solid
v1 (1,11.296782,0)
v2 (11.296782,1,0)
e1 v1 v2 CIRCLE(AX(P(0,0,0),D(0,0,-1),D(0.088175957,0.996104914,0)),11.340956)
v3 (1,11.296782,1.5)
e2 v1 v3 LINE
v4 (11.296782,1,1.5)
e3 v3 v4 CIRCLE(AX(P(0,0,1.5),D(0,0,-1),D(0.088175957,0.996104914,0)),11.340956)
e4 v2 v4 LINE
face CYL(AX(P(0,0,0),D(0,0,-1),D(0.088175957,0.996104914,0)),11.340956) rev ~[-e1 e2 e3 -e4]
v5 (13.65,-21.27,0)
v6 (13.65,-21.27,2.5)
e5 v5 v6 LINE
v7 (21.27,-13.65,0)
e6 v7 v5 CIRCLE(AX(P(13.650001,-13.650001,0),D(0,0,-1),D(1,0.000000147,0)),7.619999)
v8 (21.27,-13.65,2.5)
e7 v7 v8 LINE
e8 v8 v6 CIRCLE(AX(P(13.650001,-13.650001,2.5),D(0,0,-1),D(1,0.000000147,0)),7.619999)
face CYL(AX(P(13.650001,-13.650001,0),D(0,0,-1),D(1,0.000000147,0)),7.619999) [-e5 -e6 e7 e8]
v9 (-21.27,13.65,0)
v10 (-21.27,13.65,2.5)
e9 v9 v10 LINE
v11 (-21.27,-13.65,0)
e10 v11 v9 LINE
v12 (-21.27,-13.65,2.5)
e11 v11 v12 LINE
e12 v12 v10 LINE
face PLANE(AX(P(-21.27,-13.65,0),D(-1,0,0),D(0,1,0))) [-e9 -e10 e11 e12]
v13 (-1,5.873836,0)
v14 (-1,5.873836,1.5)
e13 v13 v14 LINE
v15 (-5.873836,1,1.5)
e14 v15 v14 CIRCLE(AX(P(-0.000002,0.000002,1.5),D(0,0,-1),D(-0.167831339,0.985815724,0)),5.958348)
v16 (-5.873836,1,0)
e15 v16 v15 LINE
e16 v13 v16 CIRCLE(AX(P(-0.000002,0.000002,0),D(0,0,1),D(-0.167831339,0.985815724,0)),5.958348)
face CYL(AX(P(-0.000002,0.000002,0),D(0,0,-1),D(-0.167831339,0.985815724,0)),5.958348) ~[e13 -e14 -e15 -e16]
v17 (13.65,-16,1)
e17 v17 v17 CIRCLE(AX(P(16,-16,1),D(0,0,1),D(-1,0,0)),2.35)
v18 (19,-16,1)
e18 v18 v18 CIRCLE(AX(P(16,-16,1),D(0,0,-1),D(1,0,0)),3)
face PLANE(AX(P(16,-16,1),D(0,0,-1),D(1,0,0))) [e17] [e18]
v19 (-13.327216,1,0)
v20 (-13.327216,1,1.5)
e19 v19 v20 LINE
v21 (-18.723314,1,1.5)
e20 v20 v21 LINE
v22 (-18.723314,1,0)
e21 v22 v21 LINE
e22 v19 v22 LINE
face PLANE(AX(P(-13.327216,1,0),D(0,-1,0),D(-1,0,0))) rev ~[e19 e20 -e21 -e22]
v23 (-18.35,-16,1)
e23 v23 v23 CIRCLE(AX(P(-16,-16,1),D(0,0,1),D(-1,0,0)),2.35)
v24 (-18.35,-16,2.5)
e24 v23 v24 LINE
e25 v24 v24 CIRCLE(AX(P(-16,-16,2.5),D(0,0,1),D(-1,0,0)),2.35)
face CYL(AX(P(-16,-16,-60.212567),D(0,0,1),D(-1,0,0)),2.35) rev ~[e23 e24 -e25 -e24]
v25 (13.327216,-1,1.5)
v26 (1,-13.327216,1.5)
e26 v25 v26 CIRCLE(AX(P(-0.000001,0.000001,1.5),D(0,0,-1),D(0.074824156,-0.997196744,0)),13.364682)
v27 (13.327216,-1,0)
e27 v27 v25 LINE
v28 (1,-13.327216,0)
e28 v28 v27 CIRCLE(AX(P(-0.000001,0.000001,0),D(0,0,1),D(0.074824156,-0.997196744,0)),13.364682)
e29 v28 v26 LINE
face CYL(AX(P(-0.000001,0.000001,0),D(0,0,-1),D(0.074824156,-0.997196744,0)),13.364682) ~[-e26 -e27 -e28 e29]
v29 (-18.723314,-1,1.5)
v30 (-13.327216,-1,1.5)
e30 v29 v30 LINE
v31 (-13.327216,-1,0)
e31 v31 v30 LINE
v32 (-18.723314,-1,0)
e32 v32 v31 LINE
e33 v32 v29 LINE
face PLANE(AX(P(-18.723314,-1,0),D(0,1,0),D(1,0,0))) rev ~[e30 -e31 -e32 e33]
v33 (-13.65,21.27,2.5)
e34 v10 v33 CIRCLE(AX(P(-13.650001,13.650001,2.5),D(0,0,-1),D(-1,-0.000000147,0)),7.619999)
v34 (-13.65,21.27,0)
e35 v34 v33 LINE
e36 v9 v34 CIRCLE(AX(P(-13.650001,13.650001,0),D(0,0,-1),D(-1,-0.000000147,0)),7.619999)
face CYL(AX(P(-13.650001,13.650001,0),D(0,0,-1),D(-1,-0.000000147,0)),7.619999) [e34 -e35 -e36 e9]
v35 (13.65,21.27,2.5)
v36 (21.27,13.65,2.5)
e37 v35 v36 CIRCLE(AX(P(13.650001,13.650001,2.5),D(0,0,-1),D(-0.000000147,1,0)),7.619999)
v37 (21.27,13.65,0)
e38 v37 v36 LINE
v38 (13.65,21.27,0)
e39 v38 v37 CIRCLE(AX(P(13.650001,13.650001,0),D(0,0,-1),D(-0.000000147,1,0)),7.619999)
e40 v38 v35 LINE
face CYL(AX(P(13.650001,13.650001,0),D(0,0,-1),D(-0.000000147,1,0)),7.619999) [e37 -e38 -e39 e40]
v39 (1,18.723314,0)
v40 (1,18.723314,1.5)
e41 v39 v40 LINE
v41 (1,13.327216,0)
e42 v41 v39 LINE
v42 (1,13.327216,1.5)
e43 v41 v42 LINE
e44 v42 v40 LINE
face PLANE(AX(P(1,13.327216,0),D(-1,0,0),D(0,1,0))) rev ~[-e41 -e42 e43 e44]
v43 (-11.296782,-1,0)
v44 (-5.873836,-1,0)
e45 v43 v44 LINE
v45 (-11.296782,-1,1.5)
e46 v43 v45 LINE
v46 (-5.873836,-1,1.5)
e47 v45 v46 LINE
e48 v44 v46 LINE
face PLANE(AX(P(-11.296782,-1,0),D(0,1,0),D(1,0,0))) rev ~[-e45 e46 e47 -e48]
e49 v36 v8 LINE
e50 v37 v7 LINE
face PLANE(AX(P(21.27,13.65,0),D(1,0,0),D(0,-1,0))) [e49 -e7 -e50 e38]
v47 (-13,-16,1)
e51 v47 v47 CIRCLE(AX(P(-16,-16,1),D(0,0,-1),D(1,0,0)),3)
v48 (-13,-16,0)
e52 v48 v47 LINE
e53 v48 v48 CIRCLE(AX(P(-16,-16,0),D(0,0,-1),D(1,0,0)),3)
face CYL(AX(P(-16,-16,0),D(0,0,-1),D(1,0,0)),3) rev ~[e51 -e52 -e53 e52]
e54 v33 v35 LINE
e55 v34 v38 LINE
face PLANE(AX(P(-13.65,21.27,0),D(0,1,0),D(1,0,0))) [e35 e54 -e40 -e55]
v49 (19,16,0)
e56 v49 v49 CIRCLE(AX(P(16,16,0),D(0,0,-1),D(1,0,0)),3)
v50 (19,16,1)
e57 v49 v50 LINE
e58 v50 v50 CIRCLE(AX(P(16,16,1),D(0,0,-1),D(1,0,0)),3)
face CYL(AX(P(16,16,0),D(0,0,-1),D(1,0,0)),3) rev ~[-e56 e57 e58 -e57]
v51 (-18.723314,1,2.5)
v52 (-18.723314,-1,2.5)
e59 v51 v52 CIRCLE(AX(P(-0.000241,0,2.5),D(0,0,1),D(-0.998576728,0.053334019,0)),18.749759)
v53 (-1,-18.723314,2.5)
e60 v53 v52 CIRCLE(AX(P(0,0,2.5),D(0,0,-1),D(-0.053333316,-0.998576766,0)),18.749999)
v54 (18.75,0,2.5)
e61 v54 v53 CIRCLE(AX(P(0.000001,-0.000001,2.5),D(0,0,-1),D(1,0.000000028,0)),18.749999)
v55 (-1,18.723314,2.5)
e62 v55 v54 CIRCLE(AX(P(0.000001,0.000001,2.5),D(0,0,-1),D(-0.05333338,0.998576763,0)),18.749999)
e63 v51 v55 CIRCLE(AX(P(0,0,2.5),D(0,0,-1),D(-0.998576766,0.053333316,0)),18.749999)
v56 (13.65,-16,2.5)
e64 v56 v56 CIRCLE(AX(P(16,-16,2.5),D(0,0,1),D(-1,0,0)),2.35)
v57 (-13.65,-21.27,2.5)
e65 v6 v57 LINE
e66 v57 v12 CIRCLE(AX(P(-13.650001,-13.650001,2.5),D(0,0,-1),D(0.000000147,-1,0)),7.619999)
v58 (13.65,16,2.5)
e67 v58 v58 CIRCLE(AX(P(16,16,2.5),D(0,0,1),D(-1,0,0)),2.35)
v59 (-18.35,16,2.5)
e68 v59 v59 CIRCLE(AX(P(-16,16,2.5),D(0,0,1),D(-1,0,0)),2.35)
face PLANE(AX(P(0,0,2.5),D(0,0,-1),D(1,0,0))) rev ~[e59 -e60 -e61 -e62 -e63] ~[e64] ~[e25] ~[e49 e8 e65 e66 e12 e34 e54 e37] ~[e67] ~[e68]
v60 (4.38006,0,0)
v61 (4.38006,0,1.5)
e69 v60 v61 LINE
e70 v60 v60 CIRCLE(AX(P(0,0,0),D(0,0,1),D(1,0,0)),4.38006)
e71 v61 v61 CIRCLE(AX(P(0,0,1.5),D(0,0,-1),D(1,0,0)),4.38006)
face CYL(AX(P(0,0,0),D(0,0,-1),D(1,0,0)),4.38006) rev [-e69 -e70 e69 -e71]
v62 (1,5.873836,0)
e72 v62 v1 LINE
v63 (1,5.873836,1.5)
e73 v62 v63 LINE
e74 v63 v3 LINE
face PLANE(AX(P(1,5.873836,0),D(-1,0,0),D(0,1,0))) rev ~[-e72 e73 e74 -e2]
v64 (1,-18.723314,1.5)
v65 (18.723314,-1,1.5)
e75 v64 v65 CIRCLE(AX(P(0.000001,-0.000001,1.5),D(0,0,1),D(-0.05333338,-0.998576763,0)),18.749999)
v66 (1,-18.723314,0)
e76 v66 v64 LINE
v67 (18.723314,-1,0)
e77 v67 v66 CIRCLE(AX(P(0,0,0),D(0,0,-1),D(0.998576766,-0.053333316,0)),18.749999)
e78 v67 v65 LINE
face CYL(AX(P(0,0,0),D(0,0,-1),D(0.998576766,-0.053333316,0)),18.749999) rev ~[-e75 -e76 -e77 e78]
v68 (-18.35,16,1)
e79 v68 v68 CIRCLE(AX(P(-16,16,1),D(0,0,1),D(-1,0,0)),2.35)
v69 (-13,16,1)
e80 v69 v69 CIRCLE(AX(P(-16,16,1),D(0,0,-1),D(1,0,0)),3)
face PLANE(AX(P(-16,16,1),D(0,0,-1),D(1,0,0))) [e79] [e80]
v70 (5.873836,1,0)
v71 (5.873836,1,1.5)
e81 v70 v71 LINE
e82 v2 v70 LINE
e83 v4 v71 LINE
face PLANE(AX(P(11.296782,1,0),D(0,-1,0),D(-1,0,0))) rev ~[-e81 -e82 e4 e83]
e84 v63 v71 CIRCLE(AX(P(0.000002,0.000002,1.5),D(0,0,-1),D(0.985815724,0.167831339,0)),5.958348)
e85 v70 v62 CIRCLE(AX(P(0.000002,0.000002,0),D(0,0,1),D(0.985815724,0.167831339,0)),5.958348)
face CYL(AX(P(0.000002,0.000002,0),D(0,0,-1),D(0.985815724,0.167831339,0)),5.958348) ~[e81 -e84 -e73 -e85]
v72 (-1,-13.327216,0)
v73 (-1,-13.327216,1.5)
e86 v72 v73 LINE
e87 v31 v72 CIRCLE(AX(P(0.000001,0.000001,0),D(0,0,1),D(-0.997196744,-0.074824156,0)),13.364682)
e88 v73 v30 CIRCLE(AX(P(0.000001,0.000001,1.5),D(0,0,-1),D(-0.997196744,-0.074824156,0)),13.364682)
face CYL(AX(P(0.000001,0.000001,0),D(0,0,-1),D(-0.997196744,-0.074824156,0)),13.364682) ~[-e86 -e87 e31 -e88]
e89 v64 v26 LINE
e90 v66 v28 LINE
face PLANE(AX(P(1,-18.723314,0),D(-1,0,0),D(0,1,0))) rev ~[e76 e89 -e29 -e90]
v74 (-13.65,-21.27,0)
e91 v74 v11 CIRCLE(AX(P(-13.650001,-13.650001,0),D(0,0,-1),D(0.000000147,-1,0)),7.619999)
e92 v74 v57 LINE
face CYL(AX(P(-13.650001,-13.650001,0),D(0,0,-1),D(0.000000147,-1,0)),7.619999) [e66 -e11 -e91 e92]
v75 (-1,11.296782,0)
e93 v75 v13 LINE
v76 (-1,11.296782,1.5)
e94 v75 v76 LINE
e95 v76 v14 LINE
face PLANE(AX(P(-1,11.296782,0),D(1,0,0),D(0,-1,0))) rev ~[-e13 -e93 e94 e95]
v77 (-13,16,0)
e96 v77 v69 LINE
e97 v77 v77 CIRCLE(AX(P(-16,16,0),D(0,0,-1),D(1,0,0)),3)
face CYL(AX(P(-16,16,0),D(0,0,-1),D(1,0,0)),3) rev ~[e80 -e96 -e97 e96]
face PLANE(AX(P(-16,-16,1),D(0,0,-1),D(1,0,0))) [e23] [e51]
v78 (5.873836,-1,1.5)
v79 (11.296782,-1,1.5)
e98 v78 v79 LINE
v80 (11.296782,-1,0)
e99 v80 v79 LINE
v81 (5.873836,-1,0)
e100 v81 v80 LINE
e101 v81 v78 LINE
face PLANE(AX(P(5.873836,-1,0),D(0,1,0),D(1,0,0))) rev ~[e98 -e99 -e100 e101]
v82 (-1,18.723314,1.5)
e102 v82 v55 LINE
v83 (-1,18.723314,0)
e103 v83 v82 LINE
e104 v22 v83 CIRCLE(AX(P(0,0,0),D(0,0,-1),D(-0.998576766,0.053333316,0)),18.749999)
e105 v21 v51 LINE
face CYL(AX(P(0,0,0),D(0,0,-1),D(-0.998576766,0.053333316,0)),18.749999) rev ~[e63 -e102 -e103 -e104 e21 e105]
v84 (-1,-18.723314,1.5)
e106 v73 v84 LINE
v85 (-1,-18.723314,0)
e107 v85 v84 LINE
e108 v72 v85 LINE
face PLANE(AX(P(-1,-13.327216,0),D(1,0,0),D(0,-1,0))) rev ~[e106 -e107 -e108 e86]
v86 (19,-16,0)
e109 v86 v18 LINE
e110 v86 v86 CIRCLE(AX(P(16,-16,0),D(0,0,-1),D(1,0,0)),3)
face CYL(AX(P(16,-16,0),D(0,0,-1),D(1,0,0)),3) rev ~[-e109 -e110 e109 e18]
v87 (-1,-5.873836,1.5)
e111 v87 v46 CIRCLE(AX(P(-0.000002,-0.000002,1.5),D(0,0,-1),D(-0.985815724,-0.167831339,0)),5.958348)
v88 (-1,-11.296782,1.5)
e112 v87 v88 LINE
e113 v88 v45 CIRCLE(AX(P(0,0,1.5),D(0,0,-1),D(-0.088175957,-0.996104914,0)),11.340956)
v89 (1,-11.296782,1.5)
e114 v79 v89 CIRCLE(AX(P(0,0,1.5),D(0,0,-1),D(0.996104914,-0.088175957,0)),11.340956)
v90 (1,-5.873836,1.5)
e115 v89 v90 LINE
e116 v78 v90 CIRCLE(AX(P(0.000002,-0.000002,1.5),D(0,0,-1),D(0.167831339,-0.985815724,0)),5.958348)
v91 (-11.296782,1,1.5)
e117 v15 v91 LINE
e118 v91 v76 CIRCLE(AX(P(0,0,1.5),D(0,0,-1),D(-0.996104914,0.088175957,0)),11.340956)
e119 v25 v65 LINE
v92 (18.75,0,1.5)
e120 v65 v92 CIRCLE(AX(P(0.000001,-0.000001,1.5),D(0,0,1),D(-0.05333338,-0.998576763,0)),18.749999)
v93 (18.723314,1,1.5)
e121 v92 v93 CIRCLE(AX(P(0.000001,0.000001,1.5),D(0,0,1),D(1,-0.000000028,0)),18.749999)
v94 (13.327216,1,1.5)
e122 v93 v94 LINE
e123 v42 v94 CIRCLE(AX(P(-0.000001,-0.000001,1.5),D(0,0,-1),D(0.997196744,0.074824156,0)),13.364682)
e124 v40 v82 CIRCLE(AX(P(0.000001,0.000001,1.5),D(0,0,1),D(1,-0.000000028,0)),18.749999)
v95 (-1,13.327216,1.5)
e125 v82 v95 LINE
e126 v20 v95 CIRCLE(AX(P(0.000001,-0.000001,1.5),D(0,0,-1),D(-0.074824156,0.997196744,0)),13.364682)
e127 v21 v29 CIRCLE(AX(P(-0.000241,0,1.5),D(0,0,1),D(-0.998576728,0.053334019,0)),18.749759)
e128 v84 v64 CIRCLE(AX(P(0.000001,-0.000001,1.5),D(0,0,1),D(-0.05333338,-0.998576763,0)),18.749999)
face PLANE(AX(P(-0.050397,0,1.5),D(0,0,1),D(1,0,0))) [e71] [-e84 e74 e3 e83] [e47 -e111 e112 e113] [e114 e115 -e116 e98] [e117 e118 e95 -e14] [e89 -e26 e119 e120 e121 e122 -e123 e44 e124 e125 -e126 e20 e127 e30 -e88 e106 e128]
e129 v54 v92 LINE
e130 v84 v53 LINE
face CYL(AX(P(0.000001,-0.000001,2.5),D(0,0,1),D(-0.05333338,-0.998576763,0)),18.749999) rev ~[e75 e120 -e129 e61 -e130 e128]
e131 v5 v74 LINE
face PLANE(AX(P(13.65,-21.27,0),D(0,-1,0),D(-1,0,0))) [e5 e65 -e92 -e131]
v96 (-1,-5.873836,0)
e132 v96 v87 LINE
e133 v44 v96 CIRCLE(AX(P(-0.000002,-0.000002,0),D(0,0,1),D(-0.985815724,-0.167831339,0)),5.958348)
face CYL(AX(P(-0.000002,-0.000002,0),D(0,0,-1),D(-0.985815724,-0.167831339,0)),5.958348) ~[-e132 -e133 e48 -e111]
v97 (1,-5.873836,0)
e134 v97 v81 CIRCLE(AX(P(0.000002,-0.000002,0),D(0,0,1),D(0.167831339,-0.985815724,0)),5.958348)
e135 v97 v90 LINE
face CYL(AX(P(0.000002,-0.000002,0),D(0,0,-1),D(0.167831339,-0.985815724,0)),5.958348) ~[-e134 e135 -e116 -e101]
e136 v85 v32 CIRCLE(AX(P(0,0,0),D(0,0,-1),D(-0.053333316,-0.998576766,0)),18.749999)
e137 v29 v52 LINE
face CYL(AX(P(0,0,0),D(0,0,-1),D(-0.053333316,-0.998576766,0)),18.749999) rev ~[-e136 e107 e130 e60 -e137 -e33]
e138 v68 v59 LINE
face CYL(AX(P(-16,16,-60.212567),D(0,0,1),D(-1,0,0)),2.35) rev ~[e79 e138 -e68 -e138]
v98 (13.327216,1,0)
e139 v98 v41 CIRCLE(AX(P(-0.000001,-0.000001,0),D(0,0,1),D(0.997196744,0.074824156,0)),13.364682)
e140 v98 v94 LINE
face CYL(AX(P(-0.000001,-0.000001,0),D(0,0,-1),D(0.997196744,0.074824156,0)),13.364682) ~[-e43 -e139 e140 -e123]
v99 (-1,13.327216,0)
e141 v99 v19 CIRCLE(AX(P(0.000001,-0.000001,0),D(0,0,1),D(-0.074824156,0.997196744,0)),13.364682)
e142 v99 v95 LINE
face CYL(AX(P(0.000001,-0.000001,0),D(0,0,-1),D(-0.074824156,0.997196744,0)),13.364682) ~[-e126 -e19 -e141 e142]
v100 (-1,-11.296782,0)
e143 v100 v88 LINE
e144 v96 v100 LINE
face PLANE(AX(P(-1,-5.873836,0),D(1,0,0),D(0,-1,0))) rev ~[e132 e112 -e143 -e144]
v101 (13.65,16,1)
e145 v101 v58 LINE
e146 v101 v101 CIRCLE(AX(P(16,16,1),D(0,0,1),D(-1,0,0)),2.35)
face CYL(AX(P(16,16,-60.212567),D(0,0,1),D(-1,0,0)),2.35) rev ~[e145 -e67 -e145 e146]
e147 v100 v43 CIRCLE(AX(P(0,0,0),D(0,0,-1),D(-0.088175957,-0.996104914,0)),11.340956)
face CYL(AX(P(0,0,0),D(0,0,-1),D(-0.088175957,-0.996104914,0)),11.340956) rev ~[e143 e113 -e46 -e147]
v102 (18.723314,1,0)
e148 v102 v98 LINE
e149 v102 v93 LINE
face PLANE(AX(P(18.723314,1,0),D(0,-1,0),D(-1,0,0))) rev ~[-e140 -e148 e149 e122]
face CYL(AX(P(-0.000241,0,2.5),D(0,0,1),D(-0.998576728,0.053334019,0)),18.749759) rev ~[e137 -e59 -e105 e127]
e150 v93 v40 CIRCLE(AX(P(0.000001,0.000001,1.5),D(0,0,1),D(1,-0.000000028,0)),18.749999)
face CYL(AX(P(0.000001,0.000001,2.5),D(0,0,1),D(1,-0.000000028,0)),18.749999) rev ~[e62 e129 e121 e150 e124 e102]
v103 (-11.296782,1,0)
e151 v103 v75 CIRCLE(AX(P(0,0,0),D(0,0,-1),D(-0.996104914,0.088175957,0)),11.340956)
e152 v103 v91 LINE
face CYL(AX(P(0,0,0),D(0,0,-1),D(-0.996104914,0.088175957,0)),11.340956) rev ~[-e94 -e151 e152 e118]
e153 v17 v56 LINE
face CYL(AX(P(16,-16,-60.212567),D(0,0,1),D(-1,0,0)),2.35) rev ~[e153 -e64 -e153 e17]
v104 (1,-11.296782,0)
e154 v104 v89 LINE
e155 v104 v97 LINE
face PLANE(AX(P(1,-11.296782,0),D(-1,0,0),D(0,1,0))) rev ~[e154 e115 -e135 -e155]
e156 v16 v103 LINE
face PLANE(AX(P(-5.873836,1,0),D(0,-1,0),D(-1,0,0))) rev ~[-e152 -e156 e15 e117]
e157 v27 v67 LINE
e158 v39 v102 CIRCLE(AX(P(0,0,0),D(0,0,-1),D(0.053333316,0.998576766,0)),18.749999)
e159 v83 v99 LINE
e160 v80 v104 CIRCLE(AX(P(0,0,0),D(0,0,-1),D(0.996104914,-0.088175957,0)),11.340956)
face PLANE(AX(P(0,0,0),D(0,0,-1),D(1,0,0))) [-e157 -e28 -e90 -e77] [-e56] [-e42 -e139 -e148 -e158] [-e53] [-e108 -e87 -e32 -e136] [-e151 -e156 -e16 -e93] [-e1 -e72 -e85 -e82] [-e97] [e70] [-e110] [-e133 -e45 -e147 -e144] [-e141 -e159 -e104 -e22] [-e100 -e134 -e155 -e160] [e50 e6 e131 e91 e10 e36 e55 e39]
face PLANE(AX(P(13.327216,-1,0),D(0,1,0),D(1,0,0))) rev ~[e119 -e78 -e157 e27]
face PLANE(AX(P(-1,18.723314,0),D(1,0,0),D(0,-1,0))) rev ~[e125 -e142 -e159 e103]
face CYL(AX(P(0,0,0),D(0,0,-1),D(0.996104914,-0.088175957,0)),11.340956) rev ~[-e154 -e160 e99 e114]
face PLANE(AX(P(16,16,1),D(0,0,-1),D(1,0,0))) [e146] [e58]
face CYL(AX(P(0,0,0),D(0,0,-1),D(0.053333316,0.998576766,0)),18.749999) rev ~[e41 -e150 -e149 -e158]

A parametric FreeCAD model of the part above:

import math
import FreeCAD as App
import Part
import Sketcher

doc = App.newDocument("Part")
params = doc.addObject("Spreadsheet::Sheet", "Params")
for row, (alias, value) in enumerate([
    ("sketch1_diameter", "3.2 mm"),
    ("sketch1_radius", "6.35 mm"),
    ("sketch1_radius2", "18.749999 mm"),
    ("sketch1_width", "27.3 mm"),
    ("pad1_length", "2.5 mm"),
    ("sketch2_radius", "18.749999 mm"),
    ("pocket1_length", "1 mm"),
    ("sketch3_diameter", "6 mm"),
    ("sketch3_diameter2", "3.2 mm"),
    ("pocket2_length", "1 mm"),
    ("sketch4_radius", "7.619999 mm"),
    ("sketch4_radius2", "6.35 mm"),
    ("sketch4_width", "27.3 mm"),
    ("pad2_length", "2.5 mm"),
    ("sketch5_diameter", "3.4 mm"),
    ("sketch6_diameter", "4.7 mm"),
    ("hole_diameter", "4.7 mm"),
], start=1):
    params.set(f"A{row}", alias)
    params.set(f"B{row}", "=" + value)
    params.setAlias(f"B{row}", alias)

body = doc.addObject("PartDesign::Body", "Body")

# Sketch on XY plane
sketch1 = body.newObject("Sketcher::SketchObject", "Sketch")
sketch1.AttachmentSupport = (doc.getObject("XY_Plane"), [""])
sketch1.MapMode = "FlatFace"
sketch1.addGeometry([
    Part.LineSegment(App.Vector(13.7, 20, 0), App.Vector(-13.7, 20, 0)),  # 0
    Part.ArcOfCircle(Part.Circle(App.Vector(-13.6, 13.6, 0), App.Vector(0, 0, 1), 6.4), math.radians(90), math.radians(180)),  # 1
    Part.LineSegment(App.Vector(-20, 13.7, 0), App.Vector(-20, -13.7, 0)),  # 2
    Part.ArcOfCircle(Part.Circle(App.Vector(-13.6, -13.6, 0), App.Vector(0, 0, 1), 6.4), math.radians(-180), math.radians(-90)),  # 3
    Part.LineSegment(App.Vector(-13.7, -20, 0), App.Vector(13.7, -20, 0)),  # 4
    Part.ArcOfCircle(Part.Circle(App.Vector(13.6, -13.6, 0), App.Vector(0, 0, 1), 6.4), math.radians(-90), math.radians(0)),  # 5
    Part.LineSegment(App.Vector(20, -13.7, 0), App.Vector(20, 13.7, 0)),  # 6
    Part.ArcOfCircle(Part.Circle(App.Vector(13.6, 13.6, 0), App.Vector(0, 0, 1), 6.4), math.radians(0), math.radians(90)),  # 7
    Part.Circle(App.Vector(-16, -16, 0), App.Vector(0, 0, 1), 1.6),  # 8
    Part.LineSegment(App.Vector(-1, -13.3, 0), App.Vector(-1, -18.7, 0)),  # 9
    Part.ArcOfCircle(Part.Circle(App.Vector(0, 0, 0), App.Vector(0, 0, 1), 18.7), math.radians(-177), math.radians(-93)),  # 10
    Part.LineSegment(App.Vector(-18.7, -1, 0), App.Vector(-13.3, -1, 0)),  # 11
    Part.ArcOfCircle(Part.Circle(App.Vector(0, 0, 0), App.Vector(0, 0, 1), 13.4), math.radians(-176), math.radians(-94)),  # 12
    Part.LineSegment(App.Vector(-11.3, -1, 0), App.Vector(-5.9, -1, 0)),  # 13
    Part.ArcOfCircle(Part.Circle(App.Vector(0, 0, 0), App.Vector(0, 0, 1), 6), math.radians(-170), math.radians(-100)),  # 14
    Part.LineSegment(App.Vector(-1, -5.9, 0), App.Vector(-1, -11.3, 0)),  # 15
    Part.ArcOfCircle(Part.Circle(App.Vector(0, 0, 0), App.Vector(0, 0, 1), 11.3), math.radians(-175), math.radians(-95)),  # 16
    Part.Circle(App.Vector(16, -16, 0), App.Vector(0, 0, 1), 1.6),  # 17
    Part.LineSegment(App.Vector(13.3, -1, 0), App.Vector(18.7, -1, 0)),  # 18
    Part.ArcOfCircle(Part.Circle(App.Vector(0, 0, 0), App.Vector(0, 0, 1), 18.7), math.radians(-87), math.radians(-3)),  # 19
    Part.LineSegment(App.Vector(1, -18.7, 0), App.Vector(1, -13.3, 0)),  # 20
    Part.ArcOfCircle(Part.Circle(App.Vector(0, 0, 0), App.Vector(0, 0, 1), 13.4), math.radians(-86), math.radians(-4)),  # 21
    Part.LineSegment(App.Vector(1, -11.3, 0), App.Vector(1, -5.9, 0)),  # 22
    Part.ArcOfCircle(Part.Circle(App.Vector(0, 0, 0), App.Vector(0, 0, 1), 6), math.radians(-80), math.radians(-10)),  # 23
    Part.LineSegment(App.Vector(5.9, -1, 0), App.Vector(11.3, -1, 0)),  # 24
    Part.ArcOfCircle(Part.Circle(App.Vector(0, 0, 0), App.Vector(0, 0, 1), 11.3), math.radians(-85), math.radians(-5)),  # 25
    Part.LineSegment(App.Vector(-5.9, 1, 0), App.Vector(-11.3, 1, 0)),  # 26
    Part.ArcOfCircle(Part.Circle(App.Vector(0, 0, 0), App.Vector(0, 0, 1), 11.3), math.radians(95), math.radians(175)),  # 27
    Part.LineSegment(App.Vector(-1, 11.3, 0), App.Vector(-1, 5.9, 0)),  # 28
    Part.ArcOfCircle(Part.Circle(App.Vector(0, 0, 0), App.Vector(0, 0, 1), 6), math.radians(100), math.radians(170)),  # 29
    Part.LineSegment(App.Vector(-13.3, 1, 0), App.Vector(-18.7, 1, 0)),  # 30
    Part.ArcOfCircle(Part.Circle(App.Vector(0, 0, 0), App.Vector(0, 0, 1), 18.7), math.radians(93), math.radians(177)),  # 31
    Part.LineSegment(App.Vector(-1, 18.7, 0), App.Vector(-1, 13.3, 0)),  # 32
    Part.ArcOfCircle(Part.Circle(App.Vector(0, 0, 0), App.Vector(0, 0, 1), 13.4), math.radians(94), math.radians(176)),  # 33
    Part.Circle(App.Vector(-16, 16, 0), App.Vector(0, 0, 1), 1.6),  # 34
    Part.Circle(App.Vector(0, 0, 0), App.Vector(0, 0, 1), 4.4),  # 35
    Part.ArcOfCircle(Part.Circle(App.Vector(0, 0, 0), App.Vector(0, 0, 1), 11.3), math.radians(5), math.radians(85)),  # 36
    Part.LineSegment(App.Vector(11.3, 1, 0), App.Vector(5.9, 1, 0)),  # 37
    Part.ArcOfCircle(Part.Circle(App.Vector(0, 0, 0), App.Vector(0, 0, 1), 6), math.radians(10), math.radians(80)),  # 38
    Part.LineSegment(App.Vector(1, 5.9, 0), App.Vector(1, 11.3, 0)),  # 39
    Part.ArcOfCircle(Part.Circle(App.Vector(0, 0, 0), App.Vector(0, 0, 1), 13.4), math.radians(4), math.radians(86)),  # 40
    Part.LineSegment(App.Vector(1, 13.3, 0), App.Vector(1, 18.7, 0)),  # 41
    Part.ArcOfCircle(Part.Circle(App.Vector(0, 0, 0), App.Vector(0, 0, 1), 18.7), math.radians(3), math.radians(87)),  # 42
    Part.LineSegment(App.Vector(18.7, 1, 0), App.Vector(13.3, 1, 0)),  # 43
    Part.Circle(App.Vector(16, 16, 0), App.Vector(0, 0, 1), 1.6),  # 44
], False)
sketch1.addConstraint([
    Sketcher.Constraint("Tangent", 0, 2, 1, 1),
    Sketcher.Constraint("Tangent", 1, 2, 2, 1),
    Sketcher.Constraint("Tangent", 2, 2, 3, 1),
    Sketcher.Constraint("Tangent", 3, 2, 4, 1),
    Sketcher.Constraint("Tangent", 4, 2, 5, 1),
    Sketcher.Constraint("Tangent", 5, 2, 6, 1),
    Sketcher.Constraint("Tangent", 6, 2, 7, 1),
    Sketcher.Constraint("Tangent", 7, 2, 0, 1),
    Sketcher.Constraint("Coincident", 9, 2, 10, 2),
    Sketcher.Constraint("Coincident", 10, 1, 11, 1),
    Sketcher.Constraint("Coincident", 11, 2, 12, 1),
    Sketcher.Constraint("Coincident", 12, 2, 9, 1),
    Sketcher.Constraint("Coincident", 13, 2, 14, 1),
    Sketcher.Constraint("Coincident", 14, 2, 15, 1),
    Sketcher.Constraint("Coincident", 15, 2, 16, 2),
    Sketcher.Constraint("Coincident", 16, 1, 13, 1),
    Sketcher.Constraint("Coincident", 18, 2, 19, 2),
    Sketcher.Constraint("Coincident", 19, 1, 20, 1),
    Sketcher.Constraint("Coincident", 20, 2, 21, 1),
    Sketcher.Constraint("Coincident", 21, 2, 18, 1),
    Sketcher.Constraint("Coincident", 22, 2, 23, 1),
    Sketcher.Constraint("Coincident", 23, 2, 24, 1),
    Sketcher.Constraint("Coincident", 24, 2, 25, 2),
    Sketcher.Constraint("Coincident", 25, 1, 22, 1),
    Sketcher.Constraint("Coincident", 26, 2, 27, 2),
    Sketcher.Constraint("Coincident", 27, 1, 28, 1),
    Sketcher.Constraint("Coincident", 28, 2, 29, 1),
    Sketcher.Constraint("Coincident", 29, 2, 26, 1),
    Sketcher.Constraint("Coincident", 30, 2, 31, 2),
    Sketcher.Constraint("Coincident", 31, 1, 32, 1),
    Sketcher.Constraint("Coincident", 32, 2, 33, 1),
    Sketcher.Constraint("Coincident", 33, 2, 30, 1),
    Sketcher.Constraint("Coincident", 36, 1, 37, 1),
    Sketcher.Constraint("Coincident", 37, 2, 38, 1),
    Sketcher.Constraint("Coincident", 38, 2, 39, 1),
    Sketcher.Constraint("Coincident", 39, 2, 36, 2),
    Sketcher.Constraint("Coincident", 40, 2, 41, 1),
    Sketcher.Constraint("Coincident", 41, 2, 42, 2),
    Sketcher.Constraint("Coincident", 42, 1, 43, 1),
    Sketcher.Constraint("Coincident", 43, 2, 40, 1),
    Sketcher.Constraint("Horizontal", 0),
    Sketcher.Constraint("Vertical", 2),
    Sketcher.Constraint("Horizontal", 4),
    Sketcher.Constraint("Vertical", 6),
    Sketcher.Constraint("Vertical", 9),
    Sketcher.Constraint("Horizontal", 11),
    Sketcher.Constraint("Horizontal", 13),
    Sketcher.Constraint("Vertical", 15),
    Sketcher.Constraint("Horizontal", 18),
    Sketcher.Constraint("Vertical", 20),
    Sketcher.Constraint("Vertical", 22),
    Sketcher.Constraint("Horizontal", 24),
    Sketcher.Constraint("Horizontal", 26),
    Sketcher.Constraint("Vertical", 28),
    Sketcher.Constraint("Horizontal", 30),
    Sketcher.Constraint("Vertical", 32),
    Sketcher.Constraint("Horizontal", 37),
    Sketcher.Constraint("Vertical", 39),
    Sketcher.Constraint("Vertical", 41),
    Sketcher.Constraint("Horizontal", 43),
    Sketcher.Constraint("Coincident", 10, 3, -1, 1),
    Sketcher.Constraint("Coincident", 12, 3, -1, 1),
    Sketcher.Constraint("Coincident", 14, 3, -1, 1),
    Sketcher.Constraint("Coincident", 16, 3, -1, 1),
    Sketcher.Constraint("Coincident", 19, 3, -1, 1),
    Sketcher.Constraint("Coincident", 21, 3, -1, 1),
    Sketcher.Constraint("Coincident", 23, 3, -1, 1),
    Sketcher.Constraint("Coincident", 25, 3, -1, 1),
    Sketcher.Constraint("Coincident", 27, 3, -1, 1),
    Sketcher.Constraint("Coincident", 29, 3, -1, 1),
    Sketcher.Constraint("Coincident", 31, 3, -1, 1),
    Sketcher.Constraint("Coincident", 33, 3, -1, 1),
    Sketcher.Constraint("Coincident", 35, 3, -1, 1),
    Sketcher.Constraint("Coincident", 36, 3, -1, 1),
    Sketcher.Constraint("Coincident", 38, 3, -1, 1),
    Sketcher.Constraint("Coincident", 40, 3, -1, 1),
    Sketcher.Constraint("Coincident", 42, 3, -1, 1),
    Sketcher.Constraint("Equal", 1, 3),
    Sketcher.Constraint("Equal", 3, 5),
    Sketcher.Constraint("Equal", 5, 7),
    Sketcher.Constraint("Equal", 8, 17),
    Sketcher.Constraint("Equal", 10, 19),
    Sketcher.Constraint("Equal", 12, 21),
    Sketcher.Constraint("Equal", 14, 23),
    Sketcher.Constraint("Equal", 16, 25),
    Sketcher.Constraint("Equal", 25, 27),
    Sketcher.Constraint("Equal", 23, 29),
    Sketcher.Constraint("Equal", 19, 31),
    Sketcher.Constraint("Equal", 21, 33),
    Sketcher.Constraint("Equal", 17, 34),
    Sketcher.Constraint("Equal", 27, 36),
    Sketcher.Constraint("Equal", 29, 38),
    Sketcher.Constraint("Equal", 33, 40),
    Sketcher.Constraint("Equal", 31, 42),
    Sketcher.Constraint("Equal", 34, 44),
    Sketcher.Constraint("Symmetric", 1, 3, 5, 3, -1, 1),
    Sketcher.Constraint("Symmetric", 17, 3, 34, 3, -1, 1),
    Sketcher.Constraint("Symmetric", 8, 3, 44, 3, -1, 1),
    Sketcher.Constraint("Symmetric", 8, 3, 17, 3, -2),
    Sketcher.Constraint("Horizontal", 11, 2, 13, 2),
    Sketcher.Constraint("Horizontal", 16, 1, 18, 2),
    Sketcher.Constraint("Horizontal", 9, 2, 19, 1),
    Sketcher.Constraint("Horizontal", 14, 2, 22, 2),
    Sketcher.Constraint("Horizontal", 21, 2, 23, 2),
    Sketcher.Constraint("Horizontal", 29, 2, 30, 2),
    Sketcher.Constraint("Horizontal", 33, 2, 36, 1),
    Sketcher.Constraint("Horizontal", 28, 2, 38, 2),
    Sketcher.Constraint("Horizontal", 32, 2, 40, 2),
    Sketcher.Constraint("Horizontal", 37, 2, 42, 1),
    Sketcher.Constraint("Vertical", 12, 2, 14, 2),
    Sketcher.Constraint("Vertical", 16, 1, 26, 2),
    Sketcher.Constraint("Vertical", 15, 2, 27, 1),
    Sketcher.Constraint("Vertical", 28, 2, 31, 1),
    Sketcher.Constraint("Equal", 4, 2),
    Sketcher.Constraint("Equal", 43, 9),
    Sketcher.Constraint("Diameter", 8, 3.2),
    Sketcher.Constraint("Radius", 1, 6.35),
    Sketcher.Constraint("Radius", 10, 18.749999),
    Sketcher.Constraint("DistanceX", 0, 2, 0, 1, 27.3),
    Sketcher.Constraint("DistanceX", 8, 3, -1, 1, 16.0),
    Sketcher.Constraint("DistanceY", 8, 3, -1, 1, 16.0),
    Sketcher.Constraint("DistanceX", 9, 2, -1, 1, 1.0),
    Sketcher.Constraint("Diameter", 35, 8.76012),
    Sketcher.Constraint("Radius", 12, 13.364682),
    Sketcher.Constraint("Radius", 14, 5.958348),
    Sketcher.Constraint("Radius", 16, 11.340956),
])
sketch1.setExpression("Constraints[115]", "Params.sketch1_diameter")
sketch1.setExpression("Constraints[116]", "Params.sketch1_radius")
sketch1.setExpression("Constraints[117]", "Params.sketch1_radius2")
sketch1.setExpression("Constraints[118]", "Params.sketch1_width")
pad1 = body.newObject("PartDesign::Pad", "Pad")
pad1.Profile = sketch1
pad1.setExpression("Length", "Params.pad1_length")

# Sketch on XY plane
sketch2 = body.newObject("Sketcher::SketchObject", "Sketch001")
sketch2.AttachmentSupport = (doc.getObject("XY_Plane"), [""])
sketch2.MapMode = "FlatFace"
sketch2.AttachmentOffset = App.Placement(App.Vector(0, 0, 2.5), App.Rotation())
sketch2.addGeometry([
    Part.ArcOfCircle(Part.Circle(App.Vector(0.000001, 0.000001, 0), App.Vector(0, 0, 1), 18.749999), math.radians(-0.000002), math.radians(93.057228)),  # 0
    Part.ArcOfCircle(Part.Circle(App.Vector(0, 0, 0), App.Vector(0, 0, 1), 18.749999), math.radians(93.057224), math.radians(176.942776)),  # 1
    Part.ArcOfCircle(Part.Circle(App.Vector(-0.000241, 0, 0), App.Vector(0, 0, 1), 18.749759), math.radians(176.942735), math.radians(183.057265)),  # 2
    Part.ArcOfCircle(Part.Circle(App.Vector(0, 0, 0), App.Vector(0, 0, 1), 18.749999), math.radians(-176.942776), math.radians(-93.057224)),  # 3
    Part.ArcOfCircle(Part.Circle(App.Vector(0.000001, -0.000001, 0), App.Vector(0, 0, 1), 18.749999), math.radians(-93.057228), math.radians(0.000002)),  # 4
], False)
sketch2.addConstraint([
    Sketcher.Constraint("Coincident", 0, 2, 1, 1),
    Sketcher.Constraint("Coincident", 1, 2, 2, 1),
    Sketcher.Constraint("Coincident", 2, 2, 3, 1),
    Sketcher.Constraint("Coincident", 3, 2, 4, 1),
    Sketcher.Constraint("Coincident", 4, 2, 0, 1),
    Sketcher.Constraint("Coincident", 0, 3, -1, 1),
    Sketcher.Constraint("Coincident", 1, 3, -1, 1),
    Sketcher.Constraint("Coincident", 3, 3, -1, 1),
    Sketcher.Constraint("Coincident", 4, 3, -1, 1),
    Sketcher.Constraint("PointOnObject", 4, 2, -1),
    Sketcher.Constraint("Radius", 0, 18.749999),
    Sketcher.Constraint("DistanceX", 0, 2, -1, 1, 1.0),
    Sketcher.Constraint("DistanceY", -1, 1, 1, 2, 1.0),
    Sketcher.Constraint("DistanceY", 2, 2, -1, 1, 1.0),
    Sketcher.Constraint("DistanceX", 3, 2, -1, 1, 1.0),
    Sketcher.Constraint("Radius", 2, 18.749759),
])
sketch2.setExpression("Constraints[10]", "Params.sketch2_radius")
pocket1 = body.newObject("PartDesign::Pocket", "Pocket")
pocket1.Profile = sketch2
pocket1.setExpression("Length", "Params.pocket1_length")

# Sketch on XY plane
sketch3 = body.newObject("Sketcher::SketchObject", "Sketch002")
sketch3.AttachmentSupport = (doc.getObject("XY_Plane"), [""])
sketch3.MapMode = "FlatFace"
sketch3.addGeometry([
    Part.Circle(App.Vector(-16, -16, 0), App.Vector(0, 0, 1), 3),  # 0
    Part.Circle(App.Vector(-16, -16, 0), App.Vector(0, 0, 1), 1.6),  # 1
    Part.Circle(App.Vector(16, -16, 0), App.Vector(0, 0, 1), 3),  # 2
    Part.Circle(App.Vector(16, -16, 0), App.Vector(0, 0, 1), 1.6),  # 3
    Part.Circle(App.Vector(16, 16, 0), App.Vector(0, 0, 1), 3),  # 4
    Part.Circle(App.Vector(16, 16, 0), App.Vector(0, 0, 1), 1.6),  # 5
    Part.Circle(App.Vector(-16, 16, 0), App.Vector(0, 0, 1), 3),  # 6
    Part.Circle(App.Vector(-16, 16, 0), App.Vector(0, 0, 1), 1.6),  # 7
], False)
sketch3.addConstraint([
    Sketcher.Constraint("Coincident", 1, 3, 0, 3),
    Sketcher.Constraint("Coincident", 3, 3, 2, 3),
    Sketcher.Constraint("Coincident", 5, 3, 4, 3),
    Sketcher.Constraint("Coincident", 7, 3, 6, 3),
    Sketcher.Constraint("Equal", 0, 2),
    Sketcher.Constraint("Equal", 1, 3),
    Sketcher.Constraint("Equal", 2, 4),
    Sketcher.Constraint("Equal", 3, 5),
    Sketcher.Constraint("Equal", 4, 6),
    Sketcher.Constraint("Equal", 5, 7),
    Sketcher.Constraint("Symmetric", 0, 3, 4, 3, -1, 1),
    Sketcher.Constraint("Symmetric", 2, 3, 6, 3, -1, 1),
    Sketcher.Constraint("Symmetric", 0, 3, 2, 3, -2),
    Sketcher.Constraint("Diameter", 0, 6.0),
    Sketcher.Constraint("Diameter", 1, 3.2),
    Sketcher.Constraint("DistanceX", 0, 3, -1, 1, 16.0),
    Sketcher.Constraint("DistanceY", 0, 3, -1, 1, 16.0),
])
sketch3.setExpression("Constraints[13]", "Params.sketch3_diameter")
sketch3.setExpression("Constraints[14]", "Params.sketch3_diameter2")
pocket2 = body.newObject("PartDesign::Pocket", "Pocket001")
pocket2.Profile = sketch3
pocket2.setExpression("Length", "Params.pocket2_length")
pocket2.Reversed = True

# Sketch on XY plane
sketch4 = body.newObject("Sketcher::SketchObject", "Sketch003")
sketch4.AttachmentSupport = (doc.getObject("XY_Plane"), [""])
sketch4.MapMode = "FlatFace"
sketch4.addGeometry([
    Part.ArcOfCircle(Part.Circle(App.Vector(-14, -14, 0), App.Vector(0, 0, 1), 8), math.radians(180), math.radians(270)),  # 0
    Part.LineSegment(App.Vector(-21, -14, 0), App.Vector(-21, 14, 0)),  # 1
    Part.ArcOfCircle(Part.Circle(App.Vector(-14, 14, 0), App.Vector(0, 0, 1), 8), math.radians(90), math.radians(180)),  # 2
    Part.LineSegment(App.Vector(-14, 21, 0), App.Vector(14, 21, 0)),  # 3
    Part.ArcOfCircle(Part.Circle(App.Vector(14, 14, 0), App.Vector(0, 0, 1), 8), math.radians(0), math.radians(90)),  # 4
    Part.LineSegment(App.Vector(21, 14, 0), App.Vector(21, -14, 0)),  # 5
    Part.ArcOfCircle(Part.Circle(App.Vector(14, -14, 0), App.Vector(0, 0, 1), 8), math.radians(-90), math.radians(0)),  # 6
    Part.LineSegment(App.Vector(14, -21, 0), App.Vector(-14, -21, 0)),  # 7
    Part.LineSegment(App.Vector(-20, 14, 0), App.Vector(-20, -14, 0)),  # 8
    Part.ArcOfCircle(Part.Circle(App.Vector(-14, -14, 0), App.Vector(0, 0, 1), 6), math.radians(-180), math.radians(-90)),  # 9
    Part.LineSegment(App.Vector(-14, -20, 0), App.Vector(14, -20, 0)),  # 10
    Part.ArcOfCircle(Part.Circle(App.Vector(14, -14, 0), App.Vector(0, 0, 1), 6), math.radians(-90), math.radians(0)),  # 11
    Part.LineSegment(App.Vector(20, -14, 0), App.Vector(20, 14, 0)),  # 12
    Part.ArcOfCircle(Part.Circle(App.Vector(14, 14, 0), App.Vector(0, 0, 1), 6), math.radians(0), math.radians(90)),  # 13
    Part.LineSegment(App.Vector(14, 20, 0), App.Vector(-14, 20, 0)),  # 14
    Part.ArcOfCircle(Part.Circle(App.Vector(-14, 14, 0), App.Vector(0, 0, 1), 6), math.radians(90), math.radians(180)),  # 15
], False)
sketch4.addConstraint([
    Sketcher.Constraint("Tangent", 0, 1, 1, 1),
    Sketcher.Constraint("Tangent", 1, 2, 2, 2),
    Sketcher.Constraint("Tangent", 2, 1, 3, 1),
    Sketcher.Constraint("Tangent", 3, 2, 4, 2),
    Sketcher.Constraint("Tangent", 4, 1, 5, 1),
    Sketcher.Constraint("Tangent", 5, 2, 6, 2),
    Sketcher.Constraint("Tangent", 6, 1, 7, 1),
    Sketcher.Constraint("Tangent", 7, 2, 0, 2),
    Sketcher.Constraint("Tangent", 8, 2, 9, 1),
    Sketcher.Constraint("Tangent", 9, 2, 10, 1),
    Sketcher.Constraint("Tangent", 10, 2, 11, 1),
    Sketcher.Constraint("Tangent", 11, 2, 12, 1),
    Sketcher.Constraint("Tangent", 12, 2, 13, 1),
    Sketcher.Constraint("Tangent", 13, 2, 14, 1),
    Sketcher.Constraint("Tangent", 14, 2, 15, 1),
    Sketcher.Constraint("Tangent", 15, 2, 8, 1),
    Sketcher.Constraint("Vertical", 1),
    Sketcher.Constraint("Horizontal", 3),
    Sketcher.Constraint("Vertical", 5),
    Sketcher.Constraint("Horizontal", 7),
    Sketcher.Constraint("Vertical", 8),
    Sketcher.Constraint("Horizontal", 10),
    Sketcher.Constraint("Vertical", 12),
    Sketcher.Constraint("Horizontal", 14),
    Sketcher.Constraint("Coincident", 9, 3, 0, 3),
    Sketcher.Constraint("Coincident", 11, 3, 6, 3),
    Sketcher.Constraint("Coincident", 13, 3, 4, 3),
    Sketcher.Constraint("Equal", 0, 2),
    Sketcher.Constraint("Equal", 2, 4),
    Sketcher.Constraint("Equal", 4, 6),
    Sketcher.Constraint("Equal", 13, 15),
    Sketcher.Constraint("Symmetric", 0, 3, 4, 3, -1, 1),
    Sketcher.Constraint("Equal", 14, 1),
    Sketcher.Constraint("Radius", 0, 7.619999),
    Sketcher.Constraint("Radius", 9, 6.35),
    Sketcher.Constraint("DistanceX", 3, 1, 3, 2, 27.3),
])
sketch4.setExpression("Constraints[33]", "Params.sketch4_radius")
sketch4.setExpression("Constraints[34]", "Params.sketch4_radius2")
sketch4.setExpression("Constraints[35]", "Params.sketch4_width")
pad2 = body.newObject("PartDesign::Pad", "Pad001")
pad2.Profile = sketch4
pad2.setExpression("Length", "Params.pad2_length")

# Sketch on XY plane
sketch5 = body.newObject("Sketcher::SketchObject", "Sketch004")
sketch5.AttachmentSupport = (doc.getObject("XY_Plane"), [""])
sketch5.MapMode = "FlatFace"
sketch5.AttachmentOffset = App.Placement(App.Vector(0, 0, 2.5), App.Rotation())
sketch5.addGeometry([
    Part.Circle(App.Vector(16, 16, 0), App.Vector(0, 0, 1), 1.7),
    Part.Circle(App.Vector(16, -16, 0), App.Vector(0, 0, 1), 1.7),
    Part.Circle(App.Vector(-16, -16, 0), App.Vector(0, 0, 1), 1.7),
    Part.Circle(App.Vector(-16, 16, 0), App.Vector(0, 0, 1), 1.7),
], False)
sketch5.addConstraint([
    Sketcher.Constraint("Equal", 0, 1),
    Sketcher.Constraint("Equal", 1, 2),
    Sketcher.Constraint("Equal", 2, 3),
    Sketcher.Constraint("Symmetric", 0, 3, 2, 3, -1, 1),
    Sketcher.Constraint("Symmetric", 1, 3, 3, 3, -1, 1),
    Sketcher.Constraint("Symmetric", 1, 3, 2, 3, -2),
    Sketcher.Constraint("Diameter", 0, 3.4),
    Sketcher.Constraint("DistanceX", -1, 1, 0, 3, 16.0),
    Sketcher.Constraint("DistanceY", -1, 1, 0, 3, 16.0),
])
sketch5.setExpression("Constraints[6]", "Params.sketch5_diameter")
pocket3 = body.newObject("PartDesign::Pocket", "Pocket002")
pocket3.Profile = sketch5
pocket3.Type = "ThroughAll"

# Sketch on XY plane
sketch6 = body.newObject("Sketcher::SketchObject", "Sketch005")
sketch6.AttachmentSupport = (doc.getObject("XY_Plane"), [""])
sketch6.MapMode = "FlatFace"
sketch6.addGeometry([
    Part.Circle(App.Vector(-16, 16, 0), App.Vector(0, 0, 1), 2.4),
    Part.Circle(App.Vector(16, 16, 0), App.Vector(0, 0, 1), 2.4),
    Part.Circle(App.Vector(16, -16, 0), App.Vector(0, 0, 1), 2.4),
    Part.Circle(App.Vector(-16, -16, 0), App.Vector(0, 0, 1), 2.4),
], False)
sketch6.addConstraint([
    Sketcher.Constraint("Equal", 0, 1),
    Sketcher.Constraint("Equal", 1, 2),
    Sketcher.Constraint("Equal", 2, 3),
    Sketcher.Constraint("Symmetric", 0, 3, 2, 3, -1, 1),
    Sketcher.Constraint("Symmetric", 1, 3, 3, 3, -1, 1),
    Sketcher.Constraint("Symmetric", 0, 3, 1, 3, -2),
    Sketcher.Constraint("Diameter", 0, 4.7),
    Sketcher.Constraint("DistanceX", 0, 3, -1, 1, 16.0),
    Sketcher.Constraint("DistanceY", -1, 1, 0, 3, 16.0),
])
sketch6.setExpression("Constraints[6]", "Params.sketch6_diameter")
doc.recompute()
hole = body.newObject("PartDesign::Hole", "Hole")
hole.Profile = sketch6
hole.ThreadType = "None"
hole.setExpression("Diameter", "Params.hole_diameter")
hole.DepthType = "ThroughAll"
hole.Reversed = True

doc.recompute()
